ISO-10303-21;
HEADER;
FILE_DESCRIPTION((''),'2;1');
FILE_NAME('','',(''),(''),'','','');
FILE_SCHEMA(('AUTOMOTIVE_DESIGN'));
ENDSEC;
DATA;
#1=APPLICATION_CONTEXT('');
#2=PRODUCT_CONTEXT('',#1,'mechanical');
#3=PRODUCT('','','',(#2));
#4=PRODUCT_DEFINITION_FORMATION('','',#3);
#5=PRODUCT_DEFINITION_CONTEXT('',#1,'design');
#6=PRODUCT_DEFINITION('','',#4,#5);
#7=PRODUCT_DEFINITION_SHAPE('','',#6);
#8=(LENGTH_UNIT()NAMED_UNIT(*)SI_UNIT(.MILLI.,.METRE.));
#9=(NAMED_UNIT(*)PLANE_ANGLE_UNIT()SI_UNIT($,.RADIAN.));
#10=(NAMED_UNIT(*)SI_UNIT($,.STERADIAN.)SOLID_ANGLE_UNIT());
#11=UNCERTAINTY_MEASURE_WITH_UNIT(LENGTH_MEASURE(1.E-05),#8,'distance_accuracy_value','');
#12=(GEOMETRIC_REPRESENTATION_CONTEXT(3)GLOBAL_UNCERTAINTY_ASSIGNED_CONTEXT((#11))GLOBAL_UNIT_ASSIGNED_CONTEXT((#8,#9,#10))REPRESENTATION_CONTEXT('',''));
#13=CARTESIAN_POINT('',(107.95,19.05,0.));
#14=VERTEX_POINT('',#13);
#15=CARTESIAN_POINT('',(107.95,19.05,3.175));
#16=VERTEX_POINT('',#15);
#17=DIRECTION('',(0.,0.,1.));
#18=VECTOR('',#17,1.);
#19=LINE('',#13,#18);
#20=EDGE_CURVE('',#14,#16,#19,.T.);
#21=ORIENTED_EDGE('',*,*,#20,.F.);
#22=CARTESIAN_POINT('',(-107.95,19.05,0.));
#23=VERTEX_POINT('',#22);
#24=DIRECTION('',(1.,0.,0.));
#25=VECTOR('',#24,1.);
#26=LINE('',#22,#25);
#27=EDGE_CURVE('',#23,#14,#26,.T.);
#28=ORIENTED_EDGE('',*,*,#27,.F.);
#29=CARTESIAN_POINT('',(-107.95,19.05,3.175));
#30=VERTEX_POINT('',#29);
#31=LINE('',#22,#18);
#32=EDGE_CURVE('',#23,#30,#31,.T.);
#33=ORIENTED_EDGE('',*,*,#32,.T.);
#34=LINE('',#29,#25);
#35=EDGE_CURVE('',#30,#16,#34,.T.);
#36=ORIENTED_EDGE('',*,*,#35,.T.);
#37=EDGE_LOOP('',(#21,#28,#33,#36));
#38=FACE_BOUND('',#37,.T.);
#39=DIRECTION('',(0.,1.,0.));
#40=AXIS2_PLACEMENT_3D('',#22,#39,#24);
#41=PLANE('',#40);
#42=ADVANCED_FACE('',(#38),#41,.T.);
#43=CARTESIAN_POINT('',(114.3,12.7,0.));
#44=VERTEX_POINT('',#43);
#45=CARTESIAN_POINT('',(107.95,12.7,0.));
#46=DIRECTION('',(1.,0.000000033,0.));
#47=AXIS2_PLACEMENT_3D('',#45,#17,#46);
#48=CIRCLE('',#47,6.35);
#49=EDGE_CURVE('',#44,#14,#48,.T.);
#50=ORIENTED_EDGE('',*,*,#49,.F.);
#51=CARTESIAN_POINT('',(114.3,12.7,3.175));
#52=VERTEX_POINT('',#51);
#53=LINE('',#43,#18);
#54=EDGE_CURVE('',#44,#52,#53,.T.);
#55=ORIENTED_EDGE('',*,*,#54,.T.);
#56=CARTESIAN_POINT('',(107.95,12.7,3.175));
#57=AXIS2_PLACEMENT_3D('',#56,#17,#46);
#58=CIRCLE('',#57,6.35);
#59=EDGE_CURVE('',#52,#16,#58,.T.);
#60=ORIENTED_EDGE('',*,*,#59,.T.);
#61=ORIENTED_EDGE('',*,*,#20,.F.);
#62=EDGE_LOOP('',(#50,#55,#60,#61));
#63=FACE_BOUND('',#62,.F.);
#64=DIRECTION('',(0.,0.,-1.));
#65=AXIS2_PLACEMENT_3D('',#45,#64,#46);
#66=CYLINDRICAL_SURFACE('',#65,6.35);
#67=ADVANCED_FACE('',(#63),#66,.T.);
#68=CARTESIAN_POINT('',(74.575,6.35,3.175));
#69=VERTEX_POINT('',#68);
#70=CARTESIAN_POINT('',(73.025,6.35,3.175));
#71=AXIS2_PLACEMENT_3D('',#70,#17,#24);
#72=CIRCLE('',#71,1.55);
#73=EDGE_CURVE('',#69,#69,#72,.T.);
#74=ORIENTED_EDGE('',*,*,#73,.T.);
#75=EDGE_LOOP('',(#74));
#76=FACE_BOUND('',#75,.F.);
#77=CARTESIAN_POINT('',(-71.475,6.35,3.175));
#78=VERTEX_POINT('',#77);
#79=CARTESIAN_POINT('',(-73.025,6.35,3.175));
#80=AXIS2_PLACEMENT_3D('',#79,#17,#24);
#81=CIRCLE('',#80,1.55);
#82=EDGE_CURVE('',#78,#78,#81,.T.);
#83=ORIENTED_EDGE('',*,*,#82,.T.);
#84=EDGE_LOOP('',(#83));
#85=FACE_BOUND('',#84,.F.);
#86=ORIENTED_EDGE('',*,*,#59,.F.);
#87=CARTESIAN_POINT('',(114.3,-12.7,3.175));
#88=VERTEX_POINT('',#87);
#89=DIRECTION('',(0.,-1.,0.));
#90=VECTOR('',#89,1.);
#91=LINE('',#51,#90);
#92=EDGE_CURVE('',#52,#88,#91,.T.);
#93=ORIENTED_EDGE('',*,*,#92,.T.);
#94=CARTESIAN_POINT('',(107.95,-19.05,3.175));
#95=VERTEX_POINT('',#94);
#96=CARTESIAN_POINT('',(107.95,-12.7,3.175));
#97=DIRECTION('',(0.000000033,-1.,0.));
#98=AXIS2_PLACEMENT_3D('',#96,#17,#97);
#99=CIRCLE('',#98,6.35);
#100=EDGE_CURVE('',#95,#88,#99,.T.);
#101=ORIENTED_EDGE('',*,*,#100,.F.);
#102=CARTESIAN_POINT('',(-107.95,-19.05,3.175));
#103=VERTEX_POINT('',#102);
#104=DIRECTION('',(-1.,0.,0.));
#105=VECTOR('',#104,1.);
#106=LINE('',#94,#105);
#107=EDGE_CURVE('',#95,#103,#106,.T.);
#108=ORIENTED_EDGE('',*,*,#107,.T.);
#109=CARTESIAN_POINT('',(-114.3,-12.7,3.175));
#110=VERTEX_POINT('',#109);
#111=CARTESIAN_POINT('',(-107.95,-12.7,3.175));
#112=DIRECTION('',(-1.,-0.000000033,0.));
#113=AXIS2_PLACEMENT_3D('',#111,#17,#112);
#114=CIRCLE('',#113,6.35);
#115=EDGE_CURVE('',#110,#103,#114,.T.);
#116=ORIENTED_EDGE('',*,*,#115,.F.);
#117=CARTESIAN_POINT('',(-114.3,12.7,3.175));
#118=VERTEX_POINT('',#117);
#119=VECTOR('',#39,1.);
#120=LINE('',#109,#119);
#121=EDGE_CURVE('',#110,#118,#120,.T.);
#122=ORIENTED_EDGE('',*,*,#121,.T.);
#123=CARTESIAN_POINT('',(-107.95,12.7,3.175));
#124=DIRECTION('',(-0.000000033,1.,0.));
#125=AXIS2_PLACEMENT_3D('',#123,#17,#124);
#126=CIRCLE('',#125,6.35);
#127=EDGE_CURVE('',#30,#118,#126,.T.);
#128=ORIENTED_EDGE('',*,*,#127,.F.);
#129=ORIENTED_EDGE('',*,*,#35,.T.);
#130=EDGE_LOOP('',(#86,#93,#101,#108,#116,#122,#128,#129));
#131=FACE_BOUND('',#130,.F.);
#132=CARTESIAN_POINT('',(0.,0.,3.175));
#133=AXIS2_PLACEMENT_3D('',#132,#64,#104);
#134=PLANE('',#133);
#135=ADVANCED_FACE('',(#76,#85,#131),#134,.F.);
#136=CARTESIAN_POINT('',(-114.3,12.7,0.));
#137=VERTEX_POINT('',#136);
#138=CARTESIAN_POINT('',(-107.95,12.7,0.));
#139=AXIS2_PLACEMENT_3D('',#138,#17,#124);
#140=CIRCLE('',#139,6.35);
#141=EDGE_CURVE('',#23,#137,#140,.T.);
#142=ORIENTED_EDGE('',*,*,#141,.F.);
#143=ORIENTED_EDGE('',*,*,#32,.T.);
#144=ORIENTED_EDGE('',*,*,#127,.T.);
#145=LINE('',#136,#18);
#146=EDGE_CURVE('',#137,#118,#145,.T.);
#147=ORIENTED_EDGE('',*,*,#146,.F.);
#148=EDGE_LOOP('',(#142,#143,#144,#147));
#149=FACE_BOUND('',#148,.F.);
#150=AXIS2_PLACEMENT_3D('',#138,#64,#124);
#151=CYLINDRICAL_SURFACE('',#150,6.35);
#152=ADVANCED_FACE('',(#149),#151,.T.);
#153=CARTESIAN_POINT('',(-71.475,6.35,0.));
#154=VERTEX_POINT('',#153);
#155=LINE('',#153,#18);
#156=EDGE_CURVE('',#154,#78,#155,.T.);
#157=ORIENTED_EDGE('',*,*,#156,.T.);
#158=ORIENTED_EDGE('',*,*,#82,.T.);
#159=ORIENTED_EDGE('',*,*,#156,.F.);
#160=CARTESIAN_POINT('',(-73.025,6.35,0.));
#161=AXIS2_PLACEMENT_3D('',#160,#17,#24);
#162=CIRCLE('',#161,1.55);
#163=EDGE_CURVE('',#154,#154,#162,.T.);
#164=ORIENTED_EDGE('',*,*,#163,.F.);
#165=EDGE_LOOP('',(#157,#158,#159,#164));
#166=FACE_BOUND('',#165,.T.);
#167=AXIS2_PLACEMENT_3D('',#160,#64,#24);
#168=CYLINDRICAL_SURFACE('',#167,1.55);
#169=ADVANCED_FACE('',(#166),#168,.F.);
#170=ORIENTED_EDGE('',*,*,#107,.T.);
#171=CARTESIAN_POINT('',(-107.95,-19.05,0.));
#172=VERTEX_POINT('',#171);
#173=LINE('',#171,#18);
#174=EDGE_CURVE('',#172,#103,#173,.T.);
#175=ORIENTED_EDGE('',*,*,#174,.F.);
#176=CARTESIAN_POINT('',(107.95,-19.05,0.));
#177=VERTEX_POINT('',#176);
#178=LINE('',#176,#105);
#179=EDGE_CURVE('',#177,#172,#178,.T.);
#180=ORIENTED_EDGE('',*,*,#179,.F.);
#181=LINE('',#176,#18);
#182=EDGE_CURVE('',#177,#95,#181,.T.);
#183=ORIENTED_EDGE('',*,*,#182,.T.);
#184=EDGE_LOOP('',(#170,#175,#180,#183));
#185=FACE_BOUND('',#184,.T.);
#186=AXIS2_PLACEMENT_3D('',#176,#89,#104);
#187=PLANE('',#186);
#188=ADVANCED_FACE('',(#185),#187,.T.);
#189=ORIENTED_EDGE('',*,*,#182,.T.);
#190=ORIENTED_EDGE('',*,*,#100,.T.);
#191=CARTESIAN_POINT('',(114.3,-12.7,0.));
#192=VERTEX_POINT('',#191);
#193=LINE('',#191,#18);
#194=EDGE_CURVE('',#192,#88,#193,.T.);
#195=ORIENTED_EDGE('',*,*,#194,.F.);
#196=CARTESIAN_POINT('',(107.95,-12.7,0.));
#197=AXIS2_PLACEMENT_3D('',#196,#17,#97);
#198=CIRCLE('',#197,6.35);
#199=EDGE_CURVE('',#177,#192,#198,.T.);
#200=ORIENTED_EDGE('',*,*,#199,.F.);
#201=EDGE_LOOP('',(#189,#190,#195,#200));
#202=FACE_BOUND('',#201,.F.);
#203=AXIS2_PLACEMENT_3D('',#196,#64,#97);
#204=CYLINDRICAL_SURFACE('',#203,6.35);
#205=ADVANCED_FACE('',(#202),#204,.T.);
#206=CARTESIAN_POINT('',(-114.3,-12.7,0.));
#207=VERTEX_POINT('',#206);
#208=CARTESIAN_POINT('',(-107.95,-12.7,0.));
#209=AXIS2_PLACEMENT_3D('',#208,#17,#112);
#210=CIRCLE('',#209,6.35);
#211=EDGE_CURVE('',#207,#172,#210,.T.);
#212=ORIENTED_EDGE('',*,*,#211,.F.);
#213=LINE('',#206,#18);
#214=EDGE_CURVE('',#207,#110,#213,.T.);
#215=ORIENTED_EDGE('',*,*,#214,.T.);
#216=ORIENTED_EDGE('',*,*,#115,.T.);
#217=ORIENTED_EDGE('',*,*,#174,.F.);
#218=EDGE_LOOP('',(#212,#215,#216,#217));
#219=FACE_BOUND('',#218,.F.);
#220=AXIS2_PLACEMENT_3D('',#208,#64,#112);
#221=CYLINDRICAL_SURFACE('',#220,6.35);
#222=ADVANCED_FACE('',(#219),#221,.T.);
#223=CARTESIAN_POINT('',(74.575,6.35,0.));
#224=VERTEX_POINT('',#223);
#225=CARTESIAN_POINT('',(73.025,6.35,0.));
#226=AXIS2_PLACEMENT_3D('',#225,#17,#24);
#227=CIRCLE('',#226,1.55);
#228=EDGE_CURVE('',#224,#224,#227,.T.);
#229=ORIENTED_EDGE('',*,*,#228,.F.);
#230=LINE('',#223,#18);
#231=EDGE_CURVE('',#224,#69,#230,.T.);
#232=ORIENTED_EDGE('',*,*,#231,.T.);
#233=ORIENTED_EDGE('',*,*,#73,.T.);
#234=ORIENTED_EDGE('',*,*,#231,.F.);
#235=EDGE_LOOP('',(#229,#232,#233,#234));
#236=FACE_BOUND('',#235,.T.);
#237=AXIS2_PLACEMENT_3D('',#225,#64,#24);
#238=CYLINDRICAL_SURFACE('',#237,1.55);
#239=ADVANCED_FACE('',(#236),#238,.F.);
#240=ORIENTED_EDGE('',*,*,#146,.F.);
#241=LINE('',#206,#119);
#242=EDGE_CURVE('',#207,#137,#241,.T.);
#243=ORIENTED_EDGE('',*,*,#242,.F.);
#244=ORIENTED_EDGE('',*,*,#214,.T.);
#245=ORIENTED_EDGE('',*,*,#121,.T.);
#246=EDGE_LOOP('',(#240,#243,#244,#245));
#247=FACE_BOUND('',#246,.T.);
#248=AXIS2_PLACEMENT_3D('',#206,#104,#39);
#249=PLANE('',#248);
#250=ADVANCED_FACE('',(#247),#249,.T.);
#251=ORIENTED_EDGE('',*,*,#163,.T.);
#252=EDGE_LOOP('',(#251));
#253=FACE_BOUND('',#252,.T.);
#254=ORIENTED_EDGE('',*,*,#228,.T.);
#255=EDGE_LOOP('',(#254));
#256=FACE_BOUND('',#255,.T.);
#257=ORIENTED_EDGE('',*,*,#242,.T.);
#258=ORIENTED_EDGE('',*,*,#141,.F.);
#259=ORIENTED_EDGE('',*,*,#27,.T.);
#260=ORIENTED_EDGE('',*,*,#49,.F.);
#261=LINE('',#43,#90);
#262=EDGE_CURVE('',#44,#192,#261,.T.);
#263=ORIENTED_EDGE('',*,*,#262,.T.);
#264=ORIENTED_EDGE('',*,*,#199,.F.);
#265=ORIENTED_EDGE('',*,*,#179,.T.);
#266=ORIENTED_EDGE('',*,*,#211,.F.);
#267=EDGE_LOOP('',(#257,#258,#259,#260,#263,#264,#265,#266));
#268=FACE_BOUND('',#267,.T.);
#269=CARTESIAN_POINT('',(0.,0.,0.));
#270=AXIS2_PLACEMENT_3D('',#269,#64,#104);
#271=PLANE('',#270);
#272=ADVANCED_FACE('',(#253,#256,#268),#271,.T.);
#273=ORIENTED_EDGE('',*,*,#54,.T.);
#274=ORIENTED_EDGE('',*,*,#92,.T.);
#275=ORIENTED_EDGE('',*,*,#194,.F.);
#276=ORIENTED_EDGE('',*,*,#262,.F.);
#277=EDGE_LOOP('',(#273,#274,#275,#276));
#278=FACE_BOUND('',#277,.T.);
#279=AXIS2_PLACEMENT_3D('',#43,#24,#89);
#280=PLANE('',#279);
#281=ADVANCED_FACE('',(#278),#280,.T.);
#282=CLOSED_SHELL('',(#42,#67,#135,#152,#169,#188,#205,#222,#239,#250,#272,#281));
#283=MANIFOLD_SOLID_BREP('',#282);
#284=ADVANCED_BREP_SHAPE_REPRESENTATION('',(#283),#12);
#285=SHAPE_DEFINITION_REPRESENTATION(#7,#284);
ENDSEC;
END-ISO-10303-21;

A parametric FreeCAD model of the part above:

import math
import FreeCAD as App
import Part
import Sketcher
Q = App.Units.Quantity

doc = App.newDocument("Part")
body = doc.addObject("PartDesign::Body", "Body")

# Sketch on XY plane
sketch1 = body.newObject("Sketcher::SketchObject", "Sketch")
sketch1.AttachmentSupport = (doc.getObject("XY_Plane"), [""])
sketch1.MapMode = "FlatFace"
sketch1.addGeometry(Part.LineSegment(App.Vector(108, 19.1, 0), App.Vector(-108, 19.1, 0)), False)
sketch1.addGeometry(Part.ArcOfCircle(Part.Circle(App.Vector(-107.9, 12.7, 0), App.Vector(0, 0, 1), 6.4), math.radians(90), math.radians(180)), False)
sketch1.addGeometry(Part.LineSegment(App.Vector(-114.3, 12.7, 0), App.Vector(-114.3, -12.7, 0)), False)
sketch1.addGeometry(Part.ArcOfCircle(Part.Circle(App.Vector(-107.9, -12.7, 0), App.Vector(0, 0, 1), 6.4), math.radians(-180), math.radians(-90)), False)
sketch1.addGeometry(Part.LineSegment(App.Vector(-108, -19.1, 0), App.Vector(108, -19.1, 0)), False)
sketch1.addGeometry(Part.ArcOfCircle(Part.Circle(App.Vector(107.9, -12.7, 0), App.Vector(0, 0, 1), 6.4), math.radians(-90), math.radians(0)), False)
sketch1.addGeometry(Part.LineSegment(App.Vector(114.3, -12.7, 0), App.Vector(114.3, 12.7, 0)), False)
sketch1.addGeometry(Part.ArcOfCircle(Part.Circle(App.Vector(107.9, 12.7, 0), App.Vector(0, 0, 1), 6.4), math.radians(0), math.radians(90)), False)
sketch1.addGeometry(Part.Circle(App.Vector(73, 6.3, 0), App.Vector(0, 0, 1), 1.6), False)
sketch1.addGeometry(Part.Circle(App.Vector(-73, 6.3, 0), App.Vector(0, 0, 1), 1.6), False)
sketch1.addConstraint(Sketcher.Constraint("Tangent", 0, 2, 1, 1))
sketch1.addConstraint(Sketcher.Constraint("Tangent", 1, 2, 2, 1))
sketch1.addConstraint(Sketcher.Constraint("Tangent", 2, 2, 3, 1))
sketch1.addConstraint(Sketcher.Constraint("Tangent", 3, 2, 4, 1))
sketch1.addConstraint(Sketcher.Constraint("Tangent", 4, 2, 5, 1))
sketch1.addConstraint(Sketcher.Constraint("Tangent", 5, 2, 6, 1))
sketch1.addConstraint(Sketcher.Constraint("Tangent", 6, 2, 7, 1))
sketch1.addConstraint(Sketcher.Constraint("Tangent", 7, 2, 0, 1))
sketch1.addConstraint(Sketcher.Constraint("Horizontal", 0))
sketch1.addConstraint(Sketcher.Constraint("Vertical", 2))
sketch1.addConstraint(Sketcher.Constraint("Horizontal", 4))
sketch1.addConstraint(Sketcher.Constraint("Vertical", 6))
sketch1.addConstraint(Sketcher.Constraint("Equal", 1, 3))
sketch1.addConstraint(Sketcher.Constraint("Equal", 3, 5))
sketch1.addConstraint(Sketcher.Constraint("Equal", 5, 7))
sketch1.addConstraint(Sketcher.Constraint("Equal", 8, 9))
sketch1.addConstraint(Sketcher.Constraint("Symmetric", 1, 3, 5, 3, -1, 1))
sketch1.addConstraint(Sketcher.Constraint("Symmetric", 8, 3, 9, 3, -2))
sketch1.addConstraint(Sketcher.Constraint("DistanceY", 2, 2, 2, 1, Q("1 in")))
sketch1.addConstraint(Sketcher.Constraint("Radius", 1, Q("0.25 in")))
sketch1.addConstraint(Sketcher.Constraint("DistanceX", 0, 2, 0, 1, Q("8.5 in")))
sketch1.addConstraint(Sketcher.Constraint("DistanceY", 4, 2, 8, 3, Q("1 in")))
sketch1.addConstraint(Sketcher.Constraint("Diameter", 8, Q("3.1 mm")))
sketch1.addConstraint(Sketcher.Constraint("DistanceX", 9, 3, 8, 3, Q("5.75 in")))
pad1 = body.newObject("PartDesign::Pad", "Pad")
pad1.Profile = sketch1
pad1.Length = Q("0.125 in")

doc.recompute()
